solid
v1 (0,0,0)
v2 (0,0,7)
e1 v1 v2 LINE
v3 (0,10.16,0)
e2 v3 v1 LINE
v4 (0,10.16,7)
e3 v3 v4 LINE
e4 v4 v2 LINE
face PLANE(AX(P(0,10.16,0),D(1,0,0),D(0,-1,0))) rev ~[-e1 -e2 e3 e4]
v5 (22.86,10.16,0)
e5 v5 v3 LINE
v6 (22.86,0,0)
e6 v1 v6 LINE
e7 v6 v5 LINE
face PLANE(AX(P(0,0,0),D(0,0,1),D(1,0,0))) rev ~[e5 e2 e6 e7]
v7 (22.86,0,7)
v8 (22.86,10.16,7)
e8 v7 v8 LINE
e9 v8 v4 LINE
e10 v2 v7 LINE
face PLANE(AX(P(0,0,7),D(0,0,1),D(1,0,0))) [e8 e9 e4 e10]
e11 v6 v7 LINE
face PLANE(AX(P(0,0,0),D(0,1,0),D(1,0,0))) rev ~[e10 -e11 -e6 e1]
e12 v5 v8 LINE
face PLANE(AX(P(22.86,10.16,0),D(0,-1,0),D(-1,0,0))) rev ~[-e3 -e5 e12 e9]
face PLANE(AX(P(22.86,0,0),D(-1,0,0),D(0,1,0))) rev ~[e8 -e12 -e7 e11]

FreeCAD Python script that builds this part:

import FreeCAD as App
import Part
import Sketcher
from FreeCAD import Vector
Q = App.Units.Quantity

doc = App.newDocument("Part")
params = doc.addObject("Spreadsheet::Sheet", "Params")
for row, (alias, value) in enumerate([
    ("sketch1_width", "0.9 in"),
    ("sketch1_height", "0.4 in"),
    ("pad1_length", "0.2755906 in"),
], start=1):
    params.set(f"A{row}", alias)
    params.set(f"B{row}", "=" + value)
    params.setAlias(f"B{row}", alias)

body = doc.addObject("PartDesign::Body", "Body")

# Sketch on XY plane
sketch1 = doc.addObject("Sketcher::SketchObject", "Sketch")
body.addObject(sketch1)
sketch1.AttachmentSupport = (doc.XY_Plane, [""])
sketch1.MapMode = "FlatFace"
sketch1.addGeometry(Part.LineSegment(Vector(0, 10.16, 0), Vector(0, 0, 0)), False)
sketch1.addGeometry(Part.LineSegment(Vector(0, 0, 0), Vector(22.86, 0, 0)), False)
sketch1.addGeometry(Part.LineSegment(Vector(22.86, 0, 0), Vector(22.86, 10.16, 0)), False)
sketch1.addGeometry(Part.LineSegment(Vector(22.86, 10.16, 0), Vector(0, 10.16, 0)), False)
sketch1.addConstraint(Sketcher.Constraint("Coincident", 0, 2, 1, 1))
sketch1.addConstraint(Sketcher.Constraint("Coincident", 1, 2, 2, 1))
sketch1.addConstraint(Sketcher.Constraint("Coincident", 2, 2, 3, 1))
sketch1.addConstraint(Sketcher.Constraint("Coincident", 3, 2, 0, 1))
sketch1.addConstraint(Sketcher.Constraint("Vertical", 0))
sketch1.addConstraint(Sketcher.Constraint("Horizontal", 1))
sketch1.addConstraint(Sketcher.Constraint("Vertical", 2))
sketch1.addConstraint(Sketcher.Constraint("Horizontal", 3))
sketch1.addConstraint(Sketcher.Constraint("Coincident", 0, 2, -1, 1))
sketch1.addConstraint(Sketcher.Constraint("DistanceX", 1, 1, 1, 2, Q("0.9 in")))
sketch1.addConstraint(Sketcher.Constraint("DistanceY", 0, 2, 0, 1, Q("0.4 in")))
sketch1.setExpression("Constraints[9]", "Params.sketch1_width")
sketch1.setExpression("Constraints[10]", "Params.sketch1_height")
pad1 = doc.addObject("PartDesign::Pad", "Pad")
body.addObject(pad1)
pad1.Profile = sketch1
pad1.setExpression("Length", "Params.pad1_length")

doc.recompute()
